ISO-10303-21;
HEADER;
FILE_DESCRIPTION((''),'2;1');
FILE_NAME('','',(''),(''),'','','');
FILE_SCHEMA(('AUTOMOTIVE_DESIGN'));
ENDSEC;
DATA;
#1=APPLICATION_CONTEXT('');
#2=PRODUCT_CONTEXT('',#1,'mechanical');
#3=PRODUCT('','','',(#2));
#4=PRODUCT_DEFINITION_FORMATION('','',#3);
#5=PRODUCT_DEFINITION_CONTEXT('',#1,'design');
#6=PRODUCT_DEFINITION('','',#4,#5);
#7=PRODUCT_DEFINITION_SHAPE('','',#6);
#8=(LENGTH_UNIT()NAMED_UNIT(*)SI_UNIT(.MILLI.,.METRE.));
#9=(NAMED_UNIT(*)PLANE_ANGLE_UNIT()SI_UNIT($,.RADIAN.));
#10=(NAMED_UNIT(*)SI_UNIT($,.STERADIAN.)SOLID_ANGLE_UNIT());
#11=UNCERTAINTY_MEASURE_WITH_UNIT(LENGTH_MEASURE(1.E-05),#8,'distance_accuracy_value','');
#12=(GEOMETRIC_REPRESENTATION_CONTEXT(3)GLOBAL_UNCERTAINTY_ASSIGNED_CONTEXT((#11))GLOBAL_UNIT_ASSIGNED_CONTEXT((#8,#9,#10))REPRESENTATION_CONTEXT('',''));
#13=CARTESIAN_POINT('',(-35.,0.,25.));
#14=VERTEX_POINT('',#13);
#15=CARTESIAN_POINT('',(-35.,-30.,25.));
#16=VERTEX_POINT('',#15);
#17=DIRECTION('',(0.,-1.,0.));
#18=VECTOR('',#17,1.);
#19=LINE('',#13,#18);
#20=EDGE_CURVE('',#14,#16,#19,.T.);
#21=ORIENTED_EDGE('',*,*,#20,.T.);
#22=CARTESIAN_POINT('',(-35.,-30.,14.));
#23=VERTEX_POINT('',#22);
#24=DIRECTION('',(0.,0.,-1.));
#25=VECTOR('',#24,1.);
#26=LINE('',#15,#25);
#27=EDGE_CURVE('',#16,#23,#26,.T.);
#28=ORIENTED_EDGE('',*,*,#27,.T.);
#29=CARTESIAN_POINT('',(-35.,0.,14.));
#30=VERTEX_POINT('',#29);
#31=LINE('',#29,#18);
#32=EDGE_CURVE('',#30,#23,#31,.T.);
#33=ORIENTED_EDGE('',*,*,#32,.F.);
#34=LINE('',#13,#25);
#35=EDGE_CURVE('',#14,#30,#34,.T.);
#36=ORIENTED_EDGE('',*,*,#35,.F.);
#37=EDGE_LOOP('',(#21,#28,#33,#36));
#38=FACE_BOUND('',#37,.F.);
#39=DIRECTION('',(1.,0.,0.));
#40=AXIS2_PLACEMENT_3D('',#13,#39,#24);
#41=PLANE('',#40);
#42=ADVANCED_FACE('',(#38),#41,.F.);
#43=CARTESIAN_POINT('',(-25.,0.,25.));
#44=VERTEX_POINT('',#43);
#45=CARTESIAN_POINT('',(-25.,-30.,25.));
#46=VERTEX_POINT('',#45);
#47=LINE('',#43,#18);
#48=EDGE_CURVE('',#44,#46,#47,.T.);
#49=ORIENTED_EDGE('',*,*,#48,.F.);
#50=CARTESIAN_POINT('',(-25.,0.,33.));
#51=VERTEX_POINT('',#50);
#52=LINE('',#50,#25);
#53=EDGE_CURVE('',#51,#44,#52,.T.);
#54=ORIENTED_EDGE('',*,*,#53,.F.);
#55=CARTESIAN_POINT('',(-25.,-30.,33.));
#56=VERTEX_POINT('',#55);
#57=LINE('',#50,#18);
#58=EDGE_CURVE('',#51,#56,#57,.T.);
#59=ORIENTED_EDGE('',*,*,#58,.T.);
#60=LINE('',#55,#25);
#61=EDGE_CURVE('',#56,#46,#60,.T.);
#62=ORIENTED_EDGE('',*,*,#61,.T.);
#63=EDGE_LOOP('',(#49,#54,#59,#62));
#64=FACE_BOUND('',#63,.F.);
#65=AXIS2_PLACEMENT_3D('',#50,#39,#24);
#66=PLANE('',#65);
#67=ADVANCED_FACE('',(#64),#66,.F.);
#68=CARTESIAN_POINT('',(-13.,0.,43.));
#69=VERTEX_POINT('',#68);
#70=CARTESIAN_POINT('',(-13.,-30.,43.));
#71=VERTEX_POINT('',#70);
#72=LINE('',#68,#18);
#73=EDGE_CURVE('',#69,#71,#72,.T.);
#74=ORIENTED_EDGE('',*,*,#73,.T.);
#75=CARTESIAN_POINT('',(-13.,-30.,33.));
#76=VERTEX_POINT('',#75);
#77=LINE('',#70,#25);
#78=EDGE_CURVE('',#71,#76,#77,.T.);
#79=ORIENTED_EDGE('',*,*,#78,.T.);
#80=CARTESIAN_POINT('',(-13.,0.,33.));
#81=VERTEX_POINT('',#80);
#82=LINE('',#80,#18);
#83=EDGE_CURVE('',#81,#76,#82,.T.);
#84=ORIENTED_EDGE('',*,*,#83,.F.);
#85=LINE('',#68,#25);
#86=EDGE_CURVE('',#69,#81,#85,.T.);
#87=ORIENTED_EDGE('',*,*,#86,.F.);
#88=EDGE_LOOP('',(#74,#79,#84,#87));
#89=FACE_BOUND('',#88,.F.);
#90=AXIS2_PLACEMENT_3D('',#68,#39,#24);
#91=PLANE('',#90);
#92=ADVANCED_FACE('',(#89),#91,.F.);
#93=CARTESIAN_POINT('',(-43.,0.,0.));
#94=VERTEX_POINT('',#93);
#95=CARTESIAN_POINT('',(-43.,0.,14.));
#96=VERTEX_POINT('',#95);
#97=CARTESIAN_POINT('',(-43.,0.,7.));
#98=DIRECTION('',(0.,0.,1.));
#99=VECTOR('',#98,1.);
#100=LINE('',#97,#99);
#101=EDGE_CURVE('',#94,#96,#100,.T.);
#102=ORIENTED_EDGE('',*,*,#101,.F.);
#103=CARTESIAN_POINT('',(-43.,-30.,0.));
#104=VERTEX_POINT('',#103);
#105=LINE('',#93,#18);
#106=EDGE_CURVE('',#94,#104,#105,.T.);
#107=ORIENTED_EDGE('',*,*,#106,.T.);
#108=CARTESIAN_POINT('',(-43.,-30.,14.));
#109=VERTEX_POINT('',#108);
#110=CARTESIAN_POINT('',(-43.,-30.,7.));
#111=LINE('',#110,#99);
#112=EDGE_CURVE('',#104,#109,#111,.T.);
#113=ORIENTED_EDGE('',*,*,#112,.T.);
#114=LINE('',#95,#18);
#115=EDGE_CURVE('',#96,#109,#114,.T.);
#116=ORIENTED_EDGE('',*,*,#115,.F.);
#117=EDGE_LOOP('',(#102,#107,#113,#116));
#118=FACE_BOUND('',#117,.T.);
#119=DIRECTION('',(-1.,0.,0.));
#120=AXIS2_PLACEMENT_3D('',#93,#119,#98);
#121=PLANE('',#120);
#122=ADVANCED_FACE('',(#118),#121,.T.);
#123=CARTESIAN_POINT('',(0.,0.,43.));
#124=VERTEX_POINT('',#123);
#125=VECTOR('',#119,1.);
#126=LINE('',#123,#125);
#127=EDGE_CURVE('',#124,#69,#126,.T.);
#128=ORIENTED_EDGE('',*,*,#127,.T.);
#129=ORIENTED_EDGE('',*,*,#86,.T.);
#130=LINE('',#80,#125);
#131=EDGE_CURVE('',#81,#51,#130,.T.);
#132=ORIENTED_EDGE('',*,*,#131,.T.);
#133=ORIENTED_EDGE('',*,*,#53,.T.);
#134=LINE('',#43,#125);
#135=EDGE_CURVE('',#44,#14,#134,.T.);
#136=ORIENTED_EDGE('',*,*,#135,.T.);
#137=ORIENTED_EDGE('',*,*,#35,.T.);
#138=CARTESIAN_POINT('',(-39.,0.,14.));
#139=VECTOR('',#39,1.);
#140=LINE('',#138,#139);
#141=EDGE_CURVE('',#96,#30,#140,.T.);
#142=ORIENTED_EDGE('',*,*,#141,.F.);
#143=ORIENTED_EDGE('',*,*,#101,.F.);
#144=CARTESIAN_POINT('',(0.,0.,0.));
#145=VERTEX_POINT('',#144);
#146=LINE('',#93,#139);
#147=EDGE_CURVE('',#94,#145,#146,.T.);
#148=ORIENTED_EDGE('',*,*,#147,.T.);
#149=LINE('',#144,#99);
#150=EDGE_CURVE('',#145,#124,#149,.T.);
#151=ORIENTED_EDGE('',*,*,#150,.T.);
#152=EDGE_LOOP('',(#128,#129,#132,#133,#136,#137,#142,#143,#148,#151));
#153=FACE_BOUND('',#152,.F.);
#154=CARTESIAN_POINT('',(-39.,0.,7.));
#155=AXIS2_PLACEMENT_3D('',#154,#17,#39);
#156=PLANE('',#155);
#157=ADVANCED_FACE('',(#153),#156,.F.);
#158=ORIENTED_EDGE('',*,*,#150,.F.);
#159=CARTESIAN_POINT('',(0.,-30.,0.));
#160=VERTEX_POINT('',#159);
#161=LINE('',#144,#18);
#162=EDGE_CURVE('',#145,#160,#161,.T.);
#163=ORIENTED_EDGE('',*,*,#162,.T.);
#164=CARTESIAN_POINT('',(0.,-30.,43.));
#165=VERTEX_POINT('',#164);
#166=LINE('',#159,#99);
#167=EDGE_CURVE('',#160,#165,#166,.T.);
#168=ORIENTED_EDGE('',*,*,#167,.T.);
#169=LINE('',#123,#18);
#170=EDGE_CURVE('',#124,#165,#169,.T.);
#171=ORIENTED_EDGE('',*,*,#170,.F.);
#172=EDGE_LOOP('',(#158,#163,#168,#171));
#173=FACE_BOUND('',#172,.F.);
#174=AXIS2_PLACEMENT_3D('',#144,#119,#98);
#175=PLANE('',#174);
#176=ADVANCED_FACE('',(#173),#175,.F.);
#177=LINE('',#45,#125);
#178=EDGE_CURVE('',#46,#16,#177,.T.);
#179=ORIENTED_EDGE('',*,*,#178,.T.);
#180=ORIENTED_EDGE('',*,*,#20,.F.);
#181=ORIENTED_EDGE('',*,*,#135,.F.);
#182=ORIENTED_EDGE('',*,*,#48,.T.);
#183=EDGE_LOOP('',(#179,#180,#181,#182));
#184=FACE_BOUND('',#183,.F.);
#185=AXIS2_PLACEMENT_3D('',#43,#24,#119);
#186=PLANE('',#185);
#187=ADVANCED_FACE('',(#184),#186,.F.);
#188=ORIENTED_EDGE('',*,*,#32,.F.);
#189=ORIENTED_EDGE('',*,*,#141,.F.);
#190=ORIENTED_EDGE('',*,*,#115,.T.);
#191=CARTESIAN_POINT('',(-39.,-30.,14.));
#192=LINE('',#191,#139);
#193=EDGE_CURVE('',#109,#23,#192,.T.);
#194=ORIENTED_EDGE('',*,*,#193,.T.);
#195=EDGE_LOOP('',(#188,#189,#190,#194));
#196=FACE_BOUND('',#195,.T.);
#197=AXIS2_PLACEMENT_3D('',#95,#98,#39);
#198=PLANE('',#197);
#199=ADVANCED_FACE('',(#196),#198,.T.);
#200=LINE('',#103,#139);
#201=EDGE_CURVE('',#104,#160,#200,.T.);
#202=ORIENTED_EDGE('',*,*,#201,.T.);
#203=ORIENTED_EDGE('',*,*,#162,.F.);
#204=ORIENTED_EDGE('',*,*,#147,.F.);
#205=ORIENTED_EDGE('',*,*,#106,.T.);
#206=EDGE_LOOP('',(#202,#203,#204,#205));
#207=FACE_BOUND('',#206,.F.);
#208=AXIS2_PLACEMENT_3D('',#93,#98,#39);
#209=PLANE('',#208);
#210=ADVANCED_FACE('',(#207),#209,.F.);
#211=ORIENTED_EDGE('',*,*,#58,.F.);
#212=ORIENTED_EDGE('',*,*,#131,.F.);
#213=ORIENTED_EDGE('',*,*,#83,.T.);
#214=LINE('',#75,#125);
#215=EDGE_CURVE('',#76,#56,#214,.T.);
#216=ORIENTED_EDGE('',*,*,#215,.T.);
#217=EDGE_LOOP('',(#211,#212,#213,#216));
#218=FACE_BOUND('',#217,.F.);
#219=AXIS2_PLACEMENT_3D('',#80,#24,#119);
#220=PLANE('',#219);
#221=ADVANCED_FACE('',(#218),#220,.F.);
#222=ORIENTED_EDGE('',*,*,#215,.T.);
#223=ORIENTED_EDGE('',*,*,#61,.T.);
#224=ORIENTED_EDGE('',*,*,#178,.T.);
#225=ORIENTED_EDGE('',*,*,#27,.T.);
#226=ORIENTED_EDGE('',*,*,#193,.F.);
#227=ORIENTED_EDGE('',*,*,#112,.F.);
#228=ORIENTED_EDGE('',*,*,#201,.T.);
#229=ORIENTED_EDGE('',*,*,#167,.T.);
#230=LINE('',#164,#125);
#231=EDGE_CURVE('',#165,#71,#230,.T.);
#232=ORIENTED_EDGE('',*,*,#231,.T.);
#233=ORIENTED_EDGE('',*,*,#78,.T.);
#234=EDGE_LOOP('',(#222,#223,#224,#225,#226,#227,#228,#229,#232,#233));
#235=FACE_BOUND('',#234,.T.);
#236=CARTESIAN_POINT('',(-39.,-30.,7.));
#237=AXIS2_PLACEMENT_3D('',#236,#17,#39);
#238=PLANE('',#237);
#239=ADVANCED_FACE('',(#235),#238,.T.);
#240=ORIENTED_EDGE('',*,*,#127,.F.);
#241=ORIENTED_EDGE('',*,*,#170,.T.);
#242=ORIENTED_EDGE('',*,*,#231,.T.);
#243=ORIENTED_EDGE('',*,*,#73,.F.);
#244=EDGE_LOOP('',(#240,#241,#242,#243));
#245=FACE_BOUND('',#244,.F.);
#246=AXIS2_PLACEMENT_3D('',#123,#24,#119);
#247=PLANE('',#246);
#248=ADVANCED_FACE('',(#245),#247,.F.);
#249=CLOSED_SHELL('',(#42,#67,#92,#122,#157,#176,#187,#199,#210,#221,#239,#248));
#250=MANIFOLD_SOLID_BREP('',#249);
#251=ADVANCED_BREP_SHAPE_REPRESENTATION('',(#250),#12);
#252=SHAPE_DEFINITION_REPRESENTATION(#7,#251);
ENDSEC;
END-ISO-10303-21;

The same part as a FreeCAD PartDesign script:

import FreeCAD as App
import Part
import Sketcher
Q = App.Units.Quantity


def add_polygon(sketch, points):
    """Adds a closed chain of lines whose ends are joined by coincident constraints."""
    first, n = sketch.GeometryCount, len(points)
    for a, b in zip(points, points[1:] + points[:1]):
        sketch.addGeometry(Part.LineSegment(App.Vector(*a, 0), App.Vector(*b, 0)), False)
    for i in range(n):
        sketch.addConstraint(Sketcher.Constraint("Coincident", first + i, 2, first + (i + 1) % n, 1))

doc = App.newDocument("Part")
body = doc.addObject("PartDesign::Body", "Body")

# Sketch on XZ plane
sketch1 = body.newObject("Sketcher::SketchObject", "Sketch")
sketch1.AttachmentSupport = (doc.getObject("XZ_Plane"), [""])
sketch1.MapMode = "FlatFace"
add_polygon(sketch1, [(-43, 14), (-43, 0), (0, 0), (0, 43), (-13, 43), (-13, 33), (-25, 33), (-25, 25), (-35, 25), (-35, 14)])  # lines 0-9
sketch1.addConstraint([
    Sketcher.Constraint("Vertical", 0),
    Sketcher.Constraint("Horizontal", 1),
    Sketcher.Constraint("Vertical", 2),
    Sketcher.Constraint("Horizontal", 3),
    Sketcher.Constraint("Vertical", 4),
    Sketcher.Constraint("Horizontal", 5),
    Sketcher.Constraint("Vertical", 6),
    Sketcher.Constraint("Horizontal", 7),
    Sketcher.Constraint("Vertical", 8),
    Sketcher.Constraint("Horizontal", 9),
    Sketcher.Constraint("Coincident", 1, 2, -1, 1),
    Sketcher.Constraint("Equal", 1, 2),
    Sketcher.Constraint("Equal", 7, 4),
    Sketcher.Constraint("Equal", 9, 6),
    Sketcher.Constraint("DistanceX", 1, 1, 1, 2, Q("43 mm")),
    Sketcher.Constraint("DistanceX", 3, 2, 3, 1, Q("13 mm")),
    Sketcher.Constraint("DistanceX", 5, 2, 5, 1, Q("12 mm")),
    Sketcher.Constraint("DistanceX", 7, 2, 7, 1, Q("10 mm")),
    Sketcher.Constraint("DistanceY", 0, 2, 0, 1, Q("14 mm")),
])
pad1 = body.newObject("PartDesign::Pad", "Pad")
pad1.Profile = sketch1
pad1.Length = 30

doc.recompute()
